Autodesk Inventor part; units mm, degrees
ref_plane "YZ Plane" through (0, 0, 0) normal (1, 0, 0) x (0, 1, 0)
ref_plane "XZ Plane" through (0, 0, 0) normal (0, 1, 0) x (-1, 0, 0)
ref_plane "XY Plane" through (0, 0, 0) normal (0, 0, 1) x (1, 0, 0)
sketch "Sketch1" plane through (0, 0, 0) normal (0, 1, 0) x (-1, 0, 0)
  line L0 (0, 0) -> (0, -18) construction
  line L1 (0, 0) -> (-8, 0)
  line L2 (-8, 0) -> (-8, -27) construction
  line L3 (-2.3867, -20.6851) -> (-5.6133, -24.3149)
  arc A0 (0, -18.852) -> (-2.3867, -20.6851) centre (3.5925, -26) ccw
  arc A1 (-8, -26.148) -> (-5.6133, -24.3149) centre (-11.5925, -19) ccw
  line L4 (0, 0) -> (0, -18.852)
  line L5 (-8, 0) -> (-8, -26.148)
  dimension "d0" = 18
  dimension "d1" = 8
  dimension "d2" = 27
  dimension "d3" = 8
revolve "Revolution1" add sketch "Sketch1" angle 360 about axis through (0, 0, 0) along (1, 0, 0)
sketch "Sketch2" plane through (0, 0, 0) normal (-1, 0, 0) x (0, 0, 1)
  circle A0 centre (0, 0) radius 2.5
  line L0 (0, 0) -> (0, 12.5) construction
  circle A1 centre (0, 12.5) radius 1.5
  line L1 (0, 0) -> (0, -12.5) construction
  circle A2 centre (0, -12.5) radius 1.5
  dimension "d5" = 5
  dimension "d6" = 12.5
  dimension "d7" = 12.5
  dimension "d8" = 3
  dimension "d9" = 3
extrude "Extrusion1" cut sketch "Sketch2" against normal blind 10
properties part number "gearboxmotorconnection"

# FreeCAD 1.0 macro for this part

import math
import FreeCAD as App
import Part
import Sketcher
Q = App.Units.Quantity

doc = App.newDocument("Part")
body = doc.addObject("PartDesign::Body", "Body")

sketch1 = body.newObject("Sketcher::SketchObject", "Sketch")
sketch1.AttachmentSupport = (doc.getObject("XZ_Plane"), [""])
sketch1.MapMode = "FlatFace"
sketch1.addGeometry([
    Part.LineSegment(App.Vector(0, -18.852, 0), App.Vector(0, 0, 0)),
    Part.LineSegment(App.Vector(0, 0, 0), App.Vector(8, 0, 0)),
    Part.LineSegment(App.Vector(8, 0, 0), App.Vector(8, -26.148, 0)),
    Part.ArcOfCircle(Part.Circle(App.Vector(11.591598, -19.001438, 0), App.Vector(0, 0, 1), 7.998307), math.radians(-138.369569), math.radians(-116.682411)),
    Part.LineSegment(App.Vector(5.6133, -24.3149, 0), App.Vector(2.3867, -20.6851, 0)),
    Part.ArcOfCircle(Part.Circle(App.Vector(-3.591598, -25.998562, 0), App.Vector(0, 0, 1), 7.998307), math.radians(41.630431), math.radians(63.317589)),
], False)
sketch1.addConstraint([
    Sketcher.Constraint("Coincident", 0, 2, 1, 1),
    Sketcher.Constraint("Coincident", 1, 2, 2, 1),
    Sketcher.Constraint("Coincident", 2, 2, 3, 2),
    Sketcher.Constraint("Tangent", 3, 1, 4, 1),
    Sketcher.Constraint("Tangent", 4, 2, 5, 1),
    Sketcher.Constraint("Coincident", 5, 2, 0, 1),
    Sketcher.Constraint("Vertical", 0),
    Sketcher.Constraint("Horizontal", 1),
    Sketcher.Constraint("Vertical", 2),
    Sketcher.Constraint("Coincident", 0, 2, -1, 1),
    Sketcher.Constraint("Equal", 3, 5),
    Sketcher.Constraint("DistanceX", 1, 1, 1, 2, Q("8 mm")),
    Sketcher.Constraint("Radius", 3, Q("7.9983 mm")),
    Sketcher.Constraint("DistanceY", 0, 1, 0, 2, Q("18.852 mm")),
    Sketcher.Constraint("DistanceY", 2, 2, 2, 1, Q("26.148 mm")),
    Sketcher.Constraint("DistanceY", 3, 1, -1, 1, Q("24.315 mm")),
    Sketcher.Constraint("DistanceY", 4, 2, -1, 1, Q("20.685 mm")),
])
revolution = body.newObject("PartDesign::Revolution", "Revolution")
revolution.Profile = sketch1
revolution.ReferenceAxis = (sketch1, ["H_Axis"])
revolution.Angle = 360

sketch2 = body.newObject("Sketcher::SketchObject", "Sketch001")
sketch2.AttachmentSupport = (doc.getObject("YZ_Plane"), [""])
sketch2.MapMode = "FlatFace"
sketch2.addGeometry([
    Part.Circle(App.Vector(0, 0, 0), App.Vector(0, 0, 1), 2.5),
    Part.Circle(App.Vector(12.5, 0, 0), App.Vector(0, 0, 1), 1.5),
    Part.Circle(App.Vector(-12.5, 0, 0), App.Vector(0, 0, 1), 1.5),
], False)
sketch2.addConstraint([
    Sketcher.Constraint("Coincident", 0, 3, -1, 1),
    Sketcher.Constraint("Equal", 1, 2),
    Sketcher.Constraint("Symmetric", 1, 3, 2, 3, -1, 1),
    Sketcher.Constraint("PointOnObject", 1, 3, -1),
    Sketcher.Constraint("Diameter", 0, Q("5 mm")),
    Sketcher.Constraint("Diameter", 1, Q("3 mm")),
    Sketcher.Constraint("DistanceX", -1, 1, 1, 3, Q("12.5 mm")),
])
pocket1 = body.newObject("PartDesign::Pocket", "Pocket")
pocket1.Profile = sketch2
pocket1.Length = 10
pocket1.Reversed = True

doc.recompute()
